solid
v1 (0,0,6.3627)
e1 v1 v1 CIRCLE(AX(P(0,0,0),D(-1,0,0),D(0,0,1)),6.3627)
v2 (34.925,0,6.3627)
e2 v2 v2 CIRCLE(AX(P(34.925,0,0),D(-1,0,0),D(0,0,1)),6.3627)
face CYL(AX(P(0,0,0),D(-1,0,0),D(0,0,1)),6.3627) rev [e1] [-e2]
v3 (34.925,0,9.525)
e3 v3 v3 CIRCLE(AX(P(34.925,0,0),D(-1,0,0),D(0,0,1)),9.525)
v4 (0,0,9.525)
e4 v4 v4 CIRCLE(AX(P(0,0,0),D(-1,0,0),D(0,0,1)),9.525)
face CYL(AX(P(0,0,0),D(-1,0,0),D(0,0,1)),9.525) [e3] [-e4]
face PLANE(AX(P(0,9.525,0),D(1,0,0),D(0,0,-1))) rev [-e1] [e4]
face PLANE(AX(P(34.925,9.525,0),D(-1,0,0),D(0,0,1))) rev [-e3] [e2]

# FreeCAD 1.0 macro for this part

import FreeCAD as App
import Part
import Sketcher

V = App.Vector
Q = App.Units.Quantity

doc = App.newDocument("Part")
body = doc.addObject("PartDesign::Body", "Body")

# Sketch on XY plane
sketch1 = body.newObject("Sketcher::SketchObject", "Sketch")
sketch1.AttachmentSupport = (doc.getObject("XY_Plane"), [""])
sketch1.MapMode = "FlatFace"
sketch1.addGeometry(Part.LineSegment(V(0, 9.5, 0), V(0, 6.4, 0)), False)
sketch1.addGeometry(Part.LineSegment(V(0, 6.4, 0), V(34.9, 6.4, 0)), False)
sketch1.addGeometry(Part.LineSegment(V(34.9, 6.4, 0), V(34.9, 9.5, 0)), False)
sketch1.addGeometry(Part.LineSegment(V(34.9, 9.5, 0), V(0, 9.5, 0)), False)
sketch1.addConstraint(Sketcher.Constraint("Coincident", 0, 2, 1, 1))
sketch1.addConstraint(Sketcher.Constraint("Coincident", 1, 2, 2, 1))
sketch1.addConstraint(Sketcher.Constraint("Coincident", 2, 2, 3, 1))
sketch1.addConstraint(Sketcher.Constraint("Coincident", 3, 2, 0, 1))
sketch1.addConstraint(Sketcher.Constraint("Vertical", 0))
sketch1.addConstraint(Sketcher.Constraint("Horizontal", 1))
sketch1.addConstraint(Sketcher.Constraint("Vertical", 2))
sketch1.addConstraint(Sketcher.Constraint("Horizontal", 3))
sketch1.addConstraint(Sketcher.Constraint("PointOnObject", 0, 2, -2))
sketch1.addConstraint(Sketcher.Constraint("DistanceX", 1, 1, 1, 2, Q("1.375 in")))
sketch1.addConstraint(Sketcher.Constraint("DistanceY", 0, 2, 0, 1, Q("0.1245 in")))
sketch1.addConstraint(Sketcher.Constraint("DistanceY", -1, 1, 2, 2, Q("0.375 in")))
revolution = body.newObject("PartDesign::Revolution", "Revolution")
revolution.Profile = sketch1
revolution.ReferenceAxis = (sketch1, ["H_Axis"])
revolution.Angle = 360

doc.recompute()
